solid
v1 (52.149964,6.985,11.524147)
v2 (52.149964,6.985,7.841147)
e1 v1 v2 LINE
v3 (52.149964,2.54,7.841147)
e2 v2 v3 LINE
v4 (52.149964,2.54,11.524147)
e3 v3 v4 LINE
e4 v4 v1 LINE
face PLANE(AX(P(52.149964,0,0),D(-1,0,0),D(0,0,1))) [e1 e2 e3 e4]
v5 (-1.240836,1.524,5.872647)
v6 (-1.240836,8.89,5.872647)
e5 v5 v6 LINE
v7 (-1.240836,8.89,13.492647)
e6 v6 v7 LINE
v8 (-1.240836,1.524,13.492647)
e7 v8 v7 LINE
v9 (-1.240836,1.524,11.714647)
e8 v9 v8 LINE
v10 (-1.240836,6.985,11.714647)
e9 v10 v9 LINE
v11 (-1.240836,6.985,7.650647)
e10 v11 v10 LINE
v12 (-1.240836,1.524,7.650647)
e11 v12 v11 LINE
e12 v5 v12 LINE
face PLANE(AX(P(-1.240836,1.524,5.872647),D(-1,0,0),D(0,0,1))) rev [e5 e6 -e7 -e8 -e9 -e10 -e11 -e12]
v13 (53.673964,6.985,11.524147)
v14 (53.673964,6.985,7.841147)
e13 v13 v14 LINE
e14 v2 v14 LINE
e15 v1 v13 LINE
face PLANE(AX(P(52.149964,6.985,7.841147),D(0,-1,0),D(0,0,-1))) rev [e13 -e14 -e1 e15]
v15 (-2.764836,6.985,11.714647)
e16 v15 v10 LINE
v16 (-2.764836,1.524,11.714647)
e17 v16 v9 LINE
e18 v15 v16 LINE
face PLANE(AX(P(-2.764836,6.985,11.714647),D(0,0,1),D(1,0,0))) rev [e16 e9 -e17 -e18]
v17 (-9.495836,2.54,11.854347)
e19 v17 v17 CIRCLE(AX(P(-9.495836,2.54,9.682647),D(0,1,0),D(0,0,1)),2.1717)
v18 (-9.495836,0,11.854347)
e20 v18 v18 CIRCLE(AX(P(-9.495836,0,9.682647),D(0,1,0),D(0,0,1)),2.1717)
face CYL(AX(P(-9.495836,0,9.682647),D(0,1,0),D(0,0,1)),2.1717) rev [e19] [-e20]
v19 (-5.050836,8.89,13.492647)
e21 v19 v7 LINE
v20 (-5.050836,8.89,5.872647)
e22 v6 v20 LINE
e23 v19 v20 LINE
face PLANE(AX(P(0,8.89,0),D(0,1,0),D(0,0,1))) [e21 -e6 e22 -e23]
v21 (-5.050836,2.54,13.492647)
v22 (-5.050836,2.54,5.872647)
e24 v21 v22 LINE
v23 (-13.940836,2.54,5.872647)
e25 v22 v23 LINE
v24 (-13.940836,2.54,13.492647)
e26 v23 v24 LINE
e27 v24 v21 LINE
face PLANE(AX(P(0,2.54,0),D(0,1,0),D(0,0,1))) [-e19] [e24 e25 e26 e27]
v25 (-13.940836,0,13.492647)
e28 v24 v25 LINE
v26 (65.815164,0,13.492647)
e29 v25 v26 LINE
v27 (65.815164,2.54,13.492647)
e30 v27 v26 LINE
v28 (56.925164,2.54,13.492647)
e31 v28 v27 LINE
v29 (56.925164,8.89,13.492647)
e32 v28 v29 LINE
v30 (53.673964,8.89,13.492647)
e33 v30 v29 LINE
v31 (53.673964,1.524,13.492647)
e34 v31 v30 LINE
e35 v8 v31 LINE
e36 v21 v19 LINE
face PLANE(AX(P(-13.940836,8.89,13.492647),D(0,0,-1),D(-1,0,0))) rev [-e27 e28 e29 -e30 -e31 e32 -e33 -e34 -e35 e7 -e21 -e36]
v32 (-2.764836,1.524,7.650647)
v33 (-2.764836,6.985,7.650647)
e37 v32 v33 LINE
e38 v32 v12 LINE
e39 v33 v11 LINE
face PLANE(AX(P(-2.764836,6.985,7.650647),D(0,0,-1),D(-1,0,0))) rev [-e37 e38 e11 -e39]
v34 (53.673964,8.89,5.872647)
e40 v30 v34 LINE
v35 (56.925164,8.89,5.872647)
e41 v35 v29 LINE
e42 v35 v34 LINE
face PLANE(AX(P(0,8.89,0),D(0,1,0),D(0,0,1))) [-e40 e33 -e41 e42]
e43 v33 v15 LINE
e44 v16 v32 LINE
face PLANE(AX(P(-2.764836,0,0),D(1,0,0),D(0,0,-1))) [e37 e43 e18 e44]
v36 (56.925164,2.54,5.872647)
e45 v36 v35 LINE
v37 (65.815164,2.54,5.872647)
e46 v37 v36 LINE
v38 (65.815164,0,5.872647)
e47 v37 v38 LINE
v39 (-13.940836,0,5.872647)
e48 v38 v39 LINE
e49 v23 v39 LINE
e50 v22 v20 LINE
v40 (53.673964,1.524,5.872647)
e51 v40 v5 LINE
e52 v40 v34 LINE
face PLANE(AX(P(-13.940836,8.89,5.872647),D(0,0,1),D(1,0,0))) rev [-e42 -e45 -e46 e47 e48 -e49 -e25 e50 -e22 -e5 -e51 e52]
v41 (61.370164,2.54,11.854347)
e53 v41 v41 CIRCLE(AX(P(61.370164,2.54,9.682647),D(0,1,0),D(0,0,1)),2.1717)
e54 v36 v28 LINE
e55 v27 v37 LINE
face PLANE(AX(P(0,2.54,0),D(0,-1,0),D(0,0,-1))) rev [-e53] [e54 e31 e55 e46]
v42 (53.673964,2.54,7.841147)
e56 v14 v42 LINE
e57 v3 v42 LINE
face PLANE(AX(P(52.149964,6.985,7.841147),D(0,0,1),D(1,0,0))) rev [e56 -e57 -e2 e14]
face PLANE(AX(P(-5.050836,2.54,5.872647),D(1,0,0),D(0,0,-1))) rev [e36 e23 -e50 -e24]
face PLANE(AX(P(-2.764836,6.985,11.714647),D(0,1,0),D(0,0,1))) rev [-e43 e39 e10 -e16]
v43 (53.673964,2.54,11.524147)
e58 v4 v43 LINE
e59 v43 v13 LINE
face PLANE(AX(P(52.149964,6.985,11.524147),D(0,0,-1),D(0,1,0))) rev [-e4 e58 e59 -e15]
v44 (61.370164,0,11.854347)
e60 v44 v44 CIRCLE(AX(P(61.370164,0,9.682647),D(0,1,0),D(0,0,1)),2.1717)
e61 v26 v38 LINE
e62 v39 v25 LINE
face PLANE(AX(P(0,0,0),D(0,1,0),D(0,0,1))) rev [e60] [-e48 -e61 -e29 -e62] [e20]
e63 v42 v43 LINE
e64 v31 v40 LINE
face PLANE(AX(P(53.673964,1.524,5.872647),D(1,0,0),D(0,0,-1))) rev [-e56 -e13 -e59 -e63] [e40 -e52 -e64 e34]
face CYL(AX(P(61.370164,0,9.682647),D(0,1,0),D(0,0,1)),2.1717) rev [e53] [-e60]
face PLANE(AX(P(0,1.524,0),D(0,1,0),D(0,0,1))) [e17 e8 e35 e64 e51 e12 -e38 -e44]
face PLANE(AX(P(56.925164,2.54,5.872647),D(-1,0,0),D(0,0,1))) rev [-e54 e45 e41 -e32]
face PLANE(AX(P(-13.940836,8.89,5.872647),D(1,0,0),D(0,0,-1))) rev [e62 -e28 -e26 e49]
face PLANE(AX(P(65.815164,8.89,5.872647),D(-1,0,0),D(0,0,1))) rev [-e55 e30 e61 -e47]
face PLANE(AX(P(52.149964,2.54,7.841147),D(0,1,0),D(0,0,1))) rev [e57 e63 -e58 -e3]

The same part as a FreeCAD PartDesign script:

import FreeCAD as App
import Part
import Sketcher
Q = App.Units.Quantity

doc = App.newDocument("Part")
body = doc.addObject("PartDesign::Body", "Body")

# Sketch on XZ plane
sketch1 = doc.addObject("Sketcher::SketchObject", "Sketch")
body.addObject(sketch1)
sketch1.AttachmentSupport = (doc.XZ_Plane, [""])
sketch1.MapMode = "FlatFace"
sketch1.addGeometry(Part.LineSegment(App.Vector(-14, 6, 0), App.Vector(-14, 13, 0)), False)
sketch1.addGeometry(Part.LineSegment(App.Vector(-14, 13, 0), App.Vector(66, 13, 0)), False)
sketch1.addGeometry(Part.LineSegment(App.Vector(66, 13, 0), App.Vector(66, 6, 0)), False)
sketch1.addGeometry(Part.LineSegment(App.Vector(66, 6, 0), App.Vector(-14, 6, 0)), False)
sketch1.addConstraint(Sketcher.Constraint("Coincident", 0, 2, 1, 1))
sketch1.addConstraint(Sketcher.Constraint("Coincident", 1, 2, 2, 1))
sketch1.addConstraint(Sketcher.Constraint("Coincident", 2, 2, 3, 1))
sketch1.addConstraint(Sketcher.Constraint("Coincident", 3, 2, 0, 1))
sketch1.addConstraint(Sketcher.Constraint("Vertical", 0))
sketch1.addConstraint(Sketcher.Constraint("Horizontal", 1))
sketch1.addConstraint(Sketcher.Constraint("Vertical", 2))
sketch1.addConstraint(Sketcher.Constraint("Horizontal", 3))
sketch1.addConstraint(Sketcher.Constraint("DistanceY", 0, 1, 0, 2, Q("0.3 in")))
sketch1.addConstraint(Sketcher.Constraint("DistanceX", 1, 1, 1, 2, Q("3.14 in")))
sketch1.addConstraint(Sketcher.Constraint("DistanceX", 0, 2, -1, 1, 13.940836))
sketch1.addConstraint(Sketcher.Constraint("DistanceY", -1, 1, 0, 2, 13.492647))
pad1 = doc.addObject("PartDesign::Pad", "Pad")
body.addObject(pad1)
pad1.Profile = sketch1
pad1.Length = Q("0.35 in")
pad1.Reversed = True

# Sketch on XZ plane
sketch2 = doc.addObject("Sketcher::SketchObject", "Sketch001")
body.addObject(sketch2)
sketch2.AttachmentSupport = (doc.XZ_Plane, [""])
sketch2.MapMode = "FlatFace"
sketch2.AttachmentOffset = App.Placement(App.Vector(0, 0, -0.35 * 25.4), App.Rotation())
sketch2.addGeometry(Part.LineSegment(App.Vector(-14, 6, 0), App.Vector(-14, 13, 0)), False)
sketch2.addGeometry(Part.LineSegment(App.Vector(-14, 13, 0), App.Vector(-5, 13, 0)), False)
sketch2.addGeometry(Part.LineSegment(App.Vector(-5, 13, 0), App.Vector(-5, 6, 0)), False)
sketch2.addGeometry(Part.LineSegment(App.Vector(-5, 6, 0), App.Vector(-14, 6, 0)), False)
sketch2.addConstraint(Sketcher.Constraint("Coincident", 0, 2, 1, 1))
sketch2.addConstraint(Sketcher.Constraint("Coincident", 1, 2, 2, 1))
sketch2.addConstraint(Sketcher.Constraint("Coincident", 2, 2, 3, 1))
sketch2.addConstraint(Sketcher.Constraint("Coincident", 3, 2, 0, 1))
sketch2.addConstraint(Sketcher.Constraint("Vertical", 0))
sketch2.addConstraint(Sketcher.Constraint("Horizontal", 1))
sketch2.addConstraint(Sketcher.Constraint("Vertical", 2))
sketch2.addConstraint(Sketcher.Constraint("Horizontal", 3))
sketch2.addConstraint(Sketcher.Constraint("DistanceY", 0, 1, 0, 2, Q("0.3 in")))
sketch2.addConstraint(Sketcher.Constraint("DistanceX", 1, 1, 1, 2, Q("0.35 in")))
sketch2.addConstraint(Sketcher.Constraint("DistanceX", 0, 2, -1, 1, 13.940836))
sketch2.addConstraint(Sketcher.Constraint("DistanceY", -1, 1, 0, 2, 13.492647))
pocket1 = doc.addObject("PartDesign::Pocket", "Pocket")
body.addObject(pocket1)
pocket1.Profile = sketch2
pocket1.Length = Q("0.25 in")
pocket1.Reversed = True

# Sketch on XZ plane
sketch3 = doc.addObject("Sketcher::SketchObject", "Sketch002")
body.addObject(sketch3)
sketch3.AttachmentSupport = (doc.XZ_Plane, [""])
sketch3.MapMode = "FlatFace"
sketch3.AttachmentOffset = App.Placement(App.Vector(0, 0, -0.35 * 25.4), App.Rotation())
sketch3.addGeometry(Part.LineSegment(App.Vector(57, 6, 0), App.Vector(57, 13, 0)), False)
sketch3.addGeometry(Part.LineSegment(App.Vector(57, 13, 0), App.Vector(66, 13, 0)), False)
sketch3.addGeometry(Part.LineSegment(App.Vector(66, 13, 0), App.Vector(66, 6, 0)), False)
sketch3.addGeometry(Part.LineSegment(App.Vector(66, 6, 0), App.Vector(57, 6, 0)), False)
sketch3.addConstraint(Sketcher.Constraint("Coincident", 0, 2, 1, 1))
sketch3.addConstraint(Sketcher.Constraint("Coincident", 1, 2, 2, 1))
sketch3.addConstraint(Sketcher.Constraint("Coincident", 2, 2, 3, 1))
sketch3.addConstraint(Sketcher.Constraint("Coincident", 3, 2, 0, 1))
sketch3.addConstraint(Sketcher.Constraint("Vertical", 0))
sketch3.addConstraint(Sketcher.Constraint("Horizontal", 1))
sketch3.addConstraint(Sketcher.Constraint("Vertical", 2))
sketch3.addConstraint(Sketcher.Constraint("Horizontal", 3))
sketch3.addConstraint(Sketcher.Constraint("DistanceY", 0, 1, 0, 2, Q("0.3 in")))
sketch3.addConstraint(Sketcher.Constraint("DistanceX", 1, 1, 1, 2, Q("0.35 in")))
sketch3.addConstraint(Sketcher.Constraint("DistanceX", -1, 1, 0, 2, 56.925164))
sketch3.addConstraint(Sketcher.Constraint("DistanceY", -1, 1, 0, 2, 13.492647))
pocket2 = doc.addObject("PartDesign::Pocket", "Pocket001")
body.addObject(pocket2)
pocket2.Profile = sketch3
pocket2.Length = Q("0.25 in")
pocket2.Reversed = True

# Sketch on XZ plane
sketch4 = doc.addObject("Sketcher::SketchObject", "Sketch003")
body.addObject(sketch4)
sketch4.AttachmentSupport = (doc.XZ_Plane, [""])
sketch4.MapMode = "FlatFace"
sketch4.AttachmentOffset = App.Placement(App.Vector(0, 0, -0.35 * 25.4), App.Rotation())
sketch4.addGeometry(Part.LineSegment(App.Vector(-1, 6, 0), App.Vector(-1, 13, 0)), False)
sketch4.addGeometry(Part.LineSegment(App.Vector(-1, 13, 0), App.Vector(54, 13, 0)), False)
sketch4.addGeometry(Part.LineSegment(App.Vector(54, 13, 0), App.Vector(54, 6, 0)), False)
sketch4.addGeometry(Part.LineSegment(App.Vector(54, 6, 0), App.Vector(-1, 6, 0)), False)
sketch4.addConstraint(Sketcher.Constraint("Coincident", 0, 2, 1, 1))
sketch4.addConstraint(Sketcher.Constraint("Coincident", 1, 2, 2, 1))
sketch4.addConstraint(Sketcher.Constraint("Coincident", 2, 2, 3, 1))
sketch4.addConstraint(Sketcher.Constraint("Coincident", 3, 2, 0, 1))
sketch4.addConstraint(Sketcher.Constraint("Vertical", 0))
sketch4.addConstraint(Sketcher.Constraint("Horizontal", 1))
sketch4.addConstraint(Sketcher.Constraint("Vertical", 2))
sketch4.addConstraint(Sketcher.Constraint("Horizontal", 3))
sketch4.addConstraint(Sketcher.Constraint("DistanceY", 0, 1, 0, 2, Q("0.3 in")))
sketch4.addConstraint(Sketcher.Constraint("DistanceX", 1, 1, 1, 2, Q("2.162 in")))
sketch4.addConstraint(Sketcher.Constraint("DistanceX", 0, 2, -1, 1, 1.240836))
sketch4.addConstraint(Sketcher.Constraint("DistanceY", -1, 1, 0, 2, 13.492647))
pocket3 = doc.addObject("PartDesign::Pocket", "Pocket002")
body.addObject(pocket3)
pocket3.Profile = sketch4
pocket3.Length = Q("0.29 in")
pocket3.Reversed = True

# Sketch on YZ plane
sketch5 = doc.addObject("Sketcher::SketchObject", "Sketch004")
body.addObject(sketch5)
sketch5.AttachmentSupport = (doc.YZ_Plane, [""])
sketch5.MapMode = "FlatFace"
sketch5.AttachmentOffset = App.Placement(App.Vector(0, 0, -1.240836), App.Rotation())
sketch5.addGeometry(Part.LineSegment(App.Vector(7, 11.7, 0), App.Vector(1.5, 11.7, 0)), False)
sketch5.addGeometry(Part.LineSegment(App.Vector(1.5, 11.7, 0), App.Vector(1.5, 7.7, 0)), False)
sketch5.addGeometry(Part.LineSegment(App.Vector(1.5, 7.7, 0), App.Vector(7, 7.7, 0)), False)
sketch5.addGeometry(Part.LineSegment(App.Vector(7, 7.7, 0), App.Vector(7, 11.7, 0)), False)
sketch5.addConstraint(Sketcher.Constraint("Coincident", 0, 2, 1, 1))
sketch5.addConstraint(Sketcher.Constraint("Coincident", 1, 2, 2, 1))
sketch5.addConstraint(Sketcher.Constraint("Coincident", 2, 2, 3, 1))
sketch5.addConstraint(Sketcher.Constraint("Coincident", 3, 2, 0, 1))
sketch5.addConstraint(Sketcher.Constraint("Horizontal", 0))
sketch5.addConstraint(Sketcher.Constraint("Vertical", 1))
sketch5.addConstraint(Sketcher.Constraint("Horizontal", 2))
sketch5.addConstraint(Sketcher.Constraint("Vertical", 3))
sketch5.addConstraint(Sketcher.Constraint("DistanceY", 1, 2, 1, 1, Q("0.16 in")))
sketch5.addConstraint(Sketcher.Constraint("DistanceX", 0, 2, 0, 1, Q("0.215 in")))
sketch5.addConstraint(Sketcher.Constraint("DistanceX", -1, 1, 0, 2, Q("0.06 in")))
sketch5.addConstraint(Sketcher.Constraint("DistanceY", -1, 1, 0, 2, 11.714647))
pocket4 = doc.addObject("PartDesign::Pocket", "Pocket003")
body.addObject(pocket4)
pocket4.Profile = sketch5
pocket4.Length = Q("0.06 in")

# Sketch on YZ plane
sketch6 = doc.addObject("Sketcher::SketchObject", "Sketch005")
body.addObject(sketch6)
sketch6.AttachmentSupport = (doc.YZ_Plane, [""])
sketch6.MapMode = "FlatFace"
sketch6.AttachmentOffset = App.Placement(App.Vector(0, 0, 53.673964), App.Rotation())
sketch6.addGeometry(Part.LineSegment(App.Vector(7, 7.8, 0), App.Vector(2.5, 7.8, 0)), False)
sketch6.addGeometry(Part.LineSegment(App.Vector(2.5, 7.8, 0), App.Vector(2.5, 11.5, 0)), False)
sketch6.addGeometry(Part.LineSegment(App.Vector(2.5, 11.5, 0), App.Vector(7, 11.5, 0)), False)
sketch6.addGeometry(Part.LineSegment(App.Vector(7, 11.5, 0), App.Vector(7, 7.8, 0)), False)
sketch6.addConstraint(Sketcher.Constraint("Coincident", 0, 2, 1, 1))
sketch6.addConstraint(Sketcher.Constraint("Coincident", 1, 2, 2, 1))
sketch6.addConstraint(Sketcher.Constraint("Coincident", 2, 2, 3, 1))
sketch6.addConstraint(Sketcher.Constraint("Coincident", 3, 2, 0, 1))
sketch6.addConstraint(Sketcher.Constraint("Horizontal", 0))
sketch6.addConstraint(Sketcher.Constraint("Vertical", 1))
sketch6.addConstraint(Sketcher.Constraint("Horizontal", 2))
sketch6.addConstraint(Sketcher.Constraint("Vertical", 3))
sketch6.addConstraint(Sketcher.Constraint("DistanceX", -1, 1, 0, 2, Q("0.1 in")))
sketch6.addConstraint(Sketcher.Constraint("DistanceX", 0, 2, 0, 1, Q("0.175 in")))
sketch6.addConstraint(Sketcher.Constraint("DistanceY", 1, 1, 1, 2, Q("0.145 in")))
sketch6.addConstraint(Sketcher.Constraint("DistanceY", -1, 1, 0, 2, 7.841147))
pad2 = doc.addObject("PartDesign::Pad", "Pad001")
body.addObject(pad2)
pad2.Profile = sketch6
pad2.Length = Q("0.06 in")
pad2.Reversed = True

# Sketch on XZ plane
sketch7 = doc.addObject("Sketcher::SketchObject", "Sketch006")
body.addObject(sketch7)
sketch7.AttachmentSupport = (doc.XZ_Plane, [""])
sketch7.MapMode = "FlatFace"
sketch7.AttachmentOffset = App.Placement(App.Vector(0, 0, -0.1 * 25.4), App.Rotation())
sketch7.addGeometry(Part.Circle(App.Vector(-9.5, 9.7, 0), App.Vector(0, 0, 1), 2.2), False)
sketch7.addConstraint(Sketcher.Constraint("Diameter", 0, Q("0.171 in")))
sketch7.addConstraint(Sketcher.Constraint("DistanceX", 0, 3, -1, 1, 9.495836))
sketch7.addConstraint(Sketcher.Constraint("DistanceY", -1, 1, 0, 3, 9.682647))
pocket5 = doc.addObject("PartDesign::Pocket", "Pocket004")
body.addObject(pocket5)
pocket5.Profile = sketch7
pocket5.Length = Q("0.1 in")
pocket5.Reversed = True

# Sketch on XZ plane
sketch8 = doc.addObject("Sketcher::SketchObject", "Sketch007")
body.addObject(sketch8)
sketch8.AttachmentSupport = (doc.XZ_Plane, [""])
sketch8.MapMode = "FlatFace"
sketch8.AttachmentOffset = App.Placement(App.Vector(0, 0, -0.1 * 25.4), App.Rotation())
sketch8.addGeometry(Part.Circle(App.Vector(61.4, 9.7, 0), App.Vector(0, 0, 1), 2.2), False)
sketch8.addConstraint(Sketcher.Constraint("Diameter", 0, Q("0.171 in")))
sketch8.addConstraint(Sketcher.Constraint("DistanceX", -1, 1, 0, 3, 61.370164))
sketch8.addConstraint(Sketcher.Constraint("DistanceY", -1, 1, 0, 3, 9.682647))
pocket6 = doc.addObject("PartDesign::Pocket", "Pocket005")
body.addObject(pocket6)
pocket6.Profile = sketch8
pocket6.Length = Q("0.1 in")
pocket6.Reversed = True

doc.recompute()
